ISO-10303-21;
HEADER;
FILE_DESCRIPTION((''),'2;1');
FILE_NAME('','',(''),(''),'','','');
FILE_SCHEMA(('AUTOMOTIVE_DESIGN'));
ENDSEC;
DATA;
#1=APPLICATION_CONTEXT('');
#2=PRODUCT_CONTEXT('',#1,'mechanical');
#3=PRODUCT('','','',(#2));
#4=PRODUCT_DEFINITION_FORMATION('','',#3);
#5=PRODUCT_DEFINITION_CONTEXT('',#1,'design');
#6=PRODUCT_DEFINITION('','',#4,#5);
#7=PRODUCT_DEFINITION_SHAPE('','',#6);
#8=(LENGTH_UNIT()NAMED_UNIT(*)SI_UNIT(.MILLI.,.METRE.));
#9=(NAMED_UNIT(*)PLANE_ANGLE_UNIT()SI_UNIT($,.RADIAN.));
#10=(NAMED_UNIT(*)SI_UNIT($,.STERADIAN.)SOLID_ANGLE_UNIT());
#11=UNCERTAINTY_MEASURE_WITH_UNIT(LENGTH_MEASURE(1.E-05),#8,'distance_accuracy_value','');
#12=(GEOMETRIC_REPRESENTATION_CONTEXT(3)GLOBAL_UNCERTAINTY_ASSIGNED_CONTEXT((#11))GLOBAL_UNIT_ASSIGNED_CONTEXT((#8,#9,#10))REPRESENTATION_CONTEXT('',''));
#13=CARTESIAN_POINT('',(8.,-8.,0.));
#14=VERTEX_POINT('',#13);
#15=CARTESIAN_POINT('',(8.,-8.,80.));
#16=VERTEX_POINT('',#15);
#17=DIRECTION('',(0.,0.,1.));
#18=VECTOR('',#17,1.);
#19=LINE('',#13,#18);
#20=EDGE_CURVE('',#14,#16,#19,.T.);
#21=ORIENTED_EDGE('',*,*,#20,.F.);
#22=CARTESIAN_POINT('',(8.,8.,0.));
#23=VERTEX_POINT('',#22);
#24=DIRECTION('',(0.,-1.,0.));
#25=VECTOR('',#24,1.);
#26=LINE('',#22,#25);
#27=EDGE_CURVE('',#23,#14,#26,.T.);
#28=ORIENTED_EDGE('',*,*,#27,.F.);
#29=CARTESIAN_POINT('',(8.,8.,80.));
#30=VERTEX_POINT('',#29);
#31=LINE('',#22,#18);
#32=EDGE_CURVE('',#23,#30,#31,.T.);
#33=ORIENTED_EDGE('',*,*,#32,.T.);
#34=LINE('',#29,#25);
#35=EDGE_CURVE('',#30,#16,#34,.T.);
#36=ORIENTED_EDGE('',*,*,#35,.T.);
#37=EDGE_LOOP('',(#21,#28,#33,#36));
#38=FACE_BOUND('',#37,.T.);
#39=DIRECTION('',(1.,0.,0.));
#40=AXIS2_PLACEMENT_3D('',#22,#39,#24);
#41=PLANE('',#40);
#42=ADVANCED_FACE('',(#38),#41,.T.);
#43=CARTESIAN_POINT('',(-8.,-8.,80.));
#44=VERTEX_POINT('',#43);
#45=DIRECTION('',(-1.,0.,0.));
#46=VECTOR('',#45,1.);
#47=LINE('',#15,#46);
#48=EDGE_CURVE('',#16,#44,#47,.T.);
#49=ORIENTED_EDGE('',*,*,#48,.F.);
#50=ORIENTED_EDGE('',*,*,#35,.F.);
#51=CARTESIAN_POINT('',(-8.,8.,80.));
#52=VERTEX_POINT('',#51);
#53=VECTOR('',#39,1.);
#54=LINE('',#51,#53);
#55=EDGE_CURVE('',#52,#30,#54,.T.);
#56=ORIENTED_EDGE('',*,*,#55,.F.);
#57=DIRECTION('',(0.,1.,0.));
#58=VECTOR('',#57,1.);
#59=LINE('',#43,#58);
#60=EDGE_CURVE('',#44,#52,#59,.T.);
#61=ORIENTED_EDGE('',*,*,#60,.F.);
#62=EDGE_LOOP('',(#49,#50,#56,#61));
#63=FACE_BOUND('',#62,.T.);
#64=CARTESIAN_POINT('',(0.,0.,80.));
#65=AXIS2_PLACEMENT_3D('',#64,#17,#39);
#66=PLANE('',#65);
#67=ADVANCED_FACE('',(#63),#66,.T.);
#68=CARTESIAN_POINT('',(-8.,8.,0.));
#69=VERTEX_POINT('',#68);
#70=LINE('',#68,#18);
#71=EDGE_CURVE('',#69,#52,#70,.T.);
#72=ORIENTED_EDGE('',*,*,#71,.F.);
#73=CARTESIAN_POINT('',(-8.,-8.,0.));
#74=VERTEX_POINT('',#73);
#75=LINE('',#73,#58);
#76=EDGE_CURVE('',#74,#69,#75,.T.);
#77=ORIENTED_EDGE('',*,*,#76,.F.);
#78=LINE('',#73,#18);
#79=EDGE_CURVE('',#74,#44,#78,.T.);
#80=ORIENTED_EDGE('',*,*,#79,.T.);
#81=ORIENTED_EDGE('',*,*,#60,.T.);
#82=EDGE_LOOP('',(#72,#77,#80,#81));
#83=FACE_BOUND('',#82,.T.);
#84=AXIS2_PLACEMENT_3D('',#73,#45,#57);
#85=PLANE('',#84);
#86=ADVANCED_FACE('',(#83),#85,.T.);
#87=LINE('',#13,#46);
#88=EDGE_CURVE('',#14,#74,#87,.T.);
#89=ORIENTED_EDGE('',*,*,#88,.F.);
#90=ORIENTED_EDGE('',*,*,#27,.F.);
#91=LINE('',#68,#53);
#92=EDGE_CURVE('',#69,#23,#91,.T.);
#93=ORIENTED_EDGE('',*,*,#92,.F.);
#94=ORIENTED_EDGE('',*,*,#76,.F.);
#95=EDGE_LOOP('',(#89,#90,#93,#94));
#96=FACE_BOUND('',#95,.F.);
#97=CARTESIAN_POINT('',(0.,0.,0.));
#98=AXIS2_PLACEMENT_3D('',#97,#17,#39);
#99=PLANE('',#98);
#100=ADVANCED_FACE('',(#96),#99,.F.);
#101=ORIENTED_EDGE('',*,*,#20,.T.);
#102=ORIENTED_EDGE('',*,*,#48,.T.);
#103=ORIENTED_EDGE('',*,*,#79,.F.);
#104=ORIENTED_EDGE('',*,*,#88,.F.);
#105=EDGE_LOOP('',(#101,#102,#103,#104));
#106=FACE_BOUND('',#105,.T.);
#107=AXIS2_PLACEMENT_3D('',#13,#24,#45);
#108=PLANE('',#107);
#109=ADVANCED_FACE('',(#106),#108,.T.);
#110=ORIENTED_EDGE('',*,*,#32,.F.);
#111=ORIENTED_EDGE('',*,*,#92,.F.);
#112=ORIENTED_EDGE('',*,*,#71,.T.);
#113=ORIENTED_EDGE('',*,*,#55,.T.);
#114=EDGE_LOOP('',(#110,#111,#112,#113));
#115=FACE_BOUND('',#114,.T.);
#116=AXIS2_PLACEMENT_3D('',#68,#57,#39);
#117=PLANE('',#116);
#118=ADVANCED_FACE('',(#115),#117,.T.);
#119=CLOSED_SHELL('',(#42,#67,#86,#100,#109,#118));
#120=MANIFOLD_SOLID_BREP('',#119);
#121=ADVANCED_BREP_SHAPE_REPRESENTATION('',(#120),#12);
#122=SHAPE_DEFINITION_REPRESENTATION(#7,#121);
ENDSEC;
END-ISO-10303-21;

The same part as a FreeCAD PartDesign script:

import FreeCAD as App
import Part
import Sketcher

V = App.Vector
Q = App.Units.Quantity


def add_polygon(sketch, points):
    """Adds a closed chain of lines whose ends are joined by coincident constraints."""
    first, n = sketch.GeometryCount, len(points)
    for a, b in zip(points, points[1:] + points[:1]):
        sketch.addGeometry(Part.LineSegment(App.Vector(*a, 0), App.Vector(*b, 0)), False)
    for i in range(n):
        sketch.addConstraint(Sketcher.Constraint("Coincident", first + i, 2, first + (i + 1) % n, 1))

doc = App.newDocument("Part")
body = doc.addObject("PartDesign::Body", "Body")

# Sketch on XY plane
sketch1 = doc.addObject("Sketcher::SketchObject", "Sketch")
body.addObject(sketch1)
sketch1.AttachmentSupport = (doc.XY_Plane, [""])
sketch1.MapMode = "FlatFace"
add_polygon(sketch1, [(-8, -8), (8, -8), (8, 8), (-8, 8)])  # lines 0-3
sketch1.addConstraint([
    Sketcher.Constraint("Horizontal", 0),
    Sketcher.Constraint("Vertical", 1),
    Sketcher.Constraint("Horizontal", 2),
    Sketcher.Constraint("Vertical", 3),
    Sketcher.Constraint("Symmetric", 0, 2, 2, 2, -1, 1),
    Sketcher.Constraint("Equal", 2, 1),
    Sketcher.Constraint("DistanceX", 0, 1, 0, 2, Q("16 mm")),
])
pad1 = doc.addObject("PartDesign::Pad", "Pad")
body.addObject(pad1)
pad1.Profile = sketch1
pad1.Length = 80

doc.recompute()
